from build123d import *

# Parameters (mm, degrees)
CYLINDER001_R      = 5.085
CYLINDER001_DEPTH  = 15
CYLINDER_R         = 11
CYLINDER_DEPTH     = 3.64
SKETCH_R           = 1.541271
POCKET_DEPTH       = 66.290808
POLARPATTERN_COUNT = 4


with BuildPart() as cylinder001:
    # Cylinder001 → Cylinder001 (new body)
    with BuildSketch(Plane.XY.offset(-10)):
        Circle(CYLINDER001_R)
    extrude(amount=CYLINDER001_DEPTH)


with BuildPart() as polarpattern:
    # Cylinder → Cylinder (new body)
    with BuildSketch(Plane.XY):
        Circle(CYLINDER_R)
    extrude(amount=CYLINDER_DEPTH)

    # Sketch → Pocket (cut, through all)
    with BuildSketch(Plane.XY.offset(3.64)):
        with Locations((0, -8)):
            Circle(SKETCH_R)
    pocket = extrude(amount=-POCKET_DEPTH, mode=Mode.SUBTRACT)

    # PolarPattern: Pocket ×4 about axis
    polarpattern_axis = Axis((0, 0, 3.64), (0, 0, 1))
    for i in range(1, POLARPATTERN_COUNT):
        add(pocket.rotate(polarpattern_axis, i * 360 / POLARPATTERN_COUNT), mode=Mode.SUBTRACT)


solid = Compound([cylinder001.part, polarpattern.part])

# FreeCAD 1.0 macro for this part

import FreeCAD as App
import Part
import Sketcher

V = App.Vector

doc = App.newDocument("Part")
body = doc.addObject("PartDesign::Body", "Body")

# Sketch on XY plane
sketch1 = doc.addObject("Sketcher::SketchObject", "Sketch")
body.addObject(sketch1)
sketch1.AttachmentSupport = (doc.XY_Plane, [""])
sketch1.MapMode = "FlatFace"
sketch1.AttachmentOffset = App.Placement(V(0, 0, -10), App.Rotation())
sketch1.addGeometry(Part.Circle(V(0, 0, 0), V(0, 0, 1), 5.085), False)
sketch1.addConstraint([
    Sketcher.Constraint("Coincident", 0, 3, -1, 1),
    Sketcher.Constraint("Diameter", 0, 10.17),
])
pad1 = doc.addObject("PartDesign::Pad", "Pad")
body.addObject(pad1)
pad1.Profile = sketch1
pad1.Length = 15
body2 = doc.addObject("PartDesign::Body", "Body001")

# Sketch on XY plane
sketch2 = doc.addObject("Sketcher::SketchObject", "Sketch001")
body2.addObject(sketch2)
sketch2.AttachmentSupport = (doc.getObject("XY_Plane001"), [""])
sketch2.MapMode = "FlatFace"
sketch2.addGeometry(Part.Circle(V(0, 0, 0), V(0, 0, 1), 11), False)
sketch2.addConstraint([
    Sketcher.Constraint("Coincident", 0, 3, -1, 1),
    Sketcher.Constraint("Diameter", 0, 22.0),
])
pad2 = doc.addObject("PartDesign::Pad", "Pad001")
body2.addObject(pad2)
pad2.Profile = sketch2
pad2.Length = 3.64

# Sketch on XY plane
sketch3 = doc.addObject("Sketcher::SketchObject", "Sketch002")
body2.addObject(sketch3)
sketch3.AttachmentSupport = (doc.getObject("XY_Plane001"), [""])
sketch3.MapMode = "FlatFace"
sketch3.AttachmentOffset = App.Placement(V(0, 0, 3.64), App.Rotation())
sketch3.addGeometry(Part.Circle(V(0, -8, 0), V(0, 0, 1), 1.541271), False)
sketch3.addConstraint([
    Sketcher.Constraint("PointOnObject", 0, 3, -2),
    Sketcher.Constraint("DistanceY", 0, 3, -1, 1, 8.0),
    Sketcher.Constraint("Diameter", 0, 3.082542),
])
pocket1 = doc.addObject("PartDesign::Pocket", "Pocket")
body2.addObject(pocket1)
pocket1.Profile = sketch3
pocket1.Type = "ThroughAll"
doc.recompute()

polarpattern = doc.addObject("PartDesign::PolarPattern", "PolarPattern")
body2.addObject(polarpattern)
polarpattern.Originals = [pocket1]
polarpattern.Axis = (doc.getObject("Z_Axis001"), [""])
polarpattern.Angle = 360
polarpattern.Occurrences = 4
body2.Tip = polarpattern

doc.recompute()
